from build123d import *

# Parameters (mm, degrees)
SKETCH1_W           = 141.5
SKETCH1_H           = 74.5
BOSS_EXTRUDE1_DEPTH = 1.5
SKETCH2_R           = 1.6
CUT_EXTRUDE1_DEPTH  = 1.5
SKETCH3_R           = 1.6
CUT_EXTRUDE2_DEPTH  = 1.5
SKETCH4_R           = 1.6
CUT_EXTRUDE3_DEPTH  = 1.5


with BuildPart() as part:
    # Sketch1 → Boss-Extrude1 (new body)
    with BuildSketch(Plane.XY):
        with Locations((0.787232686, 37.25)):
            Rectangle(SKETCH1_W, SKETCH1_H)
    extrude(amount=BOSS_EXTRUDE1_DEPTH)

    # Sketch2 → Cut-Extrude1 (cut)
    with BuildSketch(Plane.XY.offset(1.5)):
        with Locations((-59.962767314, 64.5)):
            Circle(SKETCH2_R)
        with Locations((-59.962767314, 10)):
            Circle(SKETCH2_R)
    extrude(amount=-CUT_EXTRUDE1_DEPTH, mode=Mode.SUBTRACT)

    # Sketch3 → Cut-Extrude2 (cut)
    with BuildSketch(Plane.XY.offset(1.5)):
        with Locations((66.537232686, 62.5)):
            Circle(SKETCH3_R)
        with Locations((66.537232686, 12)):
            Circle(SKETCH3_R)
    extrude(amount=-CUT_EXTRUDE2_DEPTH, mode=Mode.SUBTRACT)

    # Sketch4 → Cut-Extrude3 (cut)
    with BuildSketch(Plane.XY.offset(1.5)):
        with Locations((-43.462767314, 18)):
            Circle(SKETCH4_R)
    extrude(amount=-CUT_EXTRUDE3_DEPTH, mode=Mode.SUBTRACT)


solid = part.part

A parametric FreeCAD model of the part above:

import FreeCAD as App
import Part
import Sketcher

doc = App.newDocument("Part")
body = doc.addObject("PartDesign::Body", "Body")

sketch1 = body.newObject("Sketcher::SketchObject", "Sketch")
sketch1.AttachmentSupport = (doc.getObject("XY_Plane"), [""])
sketch1.MapMode = "FlatFace"
sketch1.addGeometry(Part.LineSegment(App.Vector(-70, 74, 0), App.Vector(-70, 0, 0)), False)
sketch1.addGeometry(Part.LineSegment(App.Vector(-70, 0, 0), App.Vector(72, 0, 0)), False)
sketch1.addGeometry(Part.LineSegment(App.Vector(72, 0, 0), App.Vector(72, 74, 0)), False)
sketch1.addGeometry(Part.LineSegment(App.Vector(72, 74, 0), App.Vector(-70, 74, 0)), False)
sketch1.addConstraint(Sketcher.Constraint("Coincident", 0, 2, 1, 1))
sketch1.addConstraint(Sketcher.Constraint("Coincident", 1, 2, 2, 1))
sketch1.addConstraint(Sketcher.Constraint("Coincident", 2, 2, 3, 1))
sketch1.addConstraint(Sketcher.Constraint("Coincident", 3, 2, 0, 1))
sketch1.addConstraint(Sketcher.Constraint("Vertical", 0))
sketch1.addConstraint(Sketcher.Constraint("Horizontal", 1))
sketch1.addConstraint(Sketcher.Constraint("Vertical", 2))
sketch1.addConstraint(Sketcher.Constraint("Horizontal", 3))
sketch1.addConstraint(Sketcher.Constraint("PointOnObject", 0, 2, -1))
sketch1.addConstraint(Sketcher.Constraint("DistanceX", 1, 1, 1, 2, 141.5))
sketch1.addConstraint(Sketcher.Constraint("DistanceY", 0, 2, 0, 1, 74.5))
sketch1.addConstraint(Sketcher.Constraint("DistanceX", 0, 2, -1, 1, 69.962767))
pad1 = body.newObject("PartDesign::Pad", "Pad")
pad1.Profile = sketch1
pad1.Length = 1.5

sketch2 = body.newObject("Sketcher::SketchObject", "Sketch001")
sketch2.AttachmentSupport = (doc.getObject("XY_Plane"), [""])
sketch2.MapMode = "FlatFace"
sketch2.AttachmentOffset = App.Placement(App.Vector(0, 0, 1.5), App.Rotation())
sketch2.addGeometry(Part.Circle(App.Vector(-60, 64.5, 0), App.Vector(0, 0, 1), 1.6), False)
sketch2.addGeometry(Part.Circle(App.Vector(-60, 10, 0), App.Vector(0, 0, 1), 1.6), False)
sketch2.addConstraint(Sketcher.Constraint("Equal", 0, 1))
sketch2.addConstraint(Sketcher.Constraint("Vertical", 0, 3, 1, 3))
sketch2.addConstraint(Sketcher.Constraint("Diameter", 0, 3.2))
sketch2.addConstraint(Sketcher.Constraint("DistanceY", -1, 1, 1, 3, 10.0))
sketch2.addConstraint(Sketcher.Constraint("DistanceY", -1, 1, 0, 3, 64.5))
sketch2.addConstraint(Sketcher.Constraint("DistanceX", 0, 3, -1, 1, 59.962767))
pocket1 = body.newObject("PartDesign::Pocket", "Pocket")
pocket1.Profile = sketch2
pocket1.Length = 1.5

sketch3 = body.newObject("Sketcher::SketchObject", "Sketch002")
sketch3.AttachmentSupport = (doc.getObject("XY_Plane"), [""])
sketch3.MapMode = "FlatFace"
sketch3.AttachmentOffset = App.Placement(App.Vector(0, 0, 1.5), App.Rotation())
sketch3.addGeometry(Part.Circle(App.Vector(66.5, 62.5, 0), App.Vector(0, 0, 1), 1.6), False)
sketch3.addGeometry(Part.Circle(App.Vector(66.5, 12, 0), App.Vector(0, 0, 1), 1.6), False)
sketch3.addConstraint(Sketcher.Constraint("Equal", 0, 1))
sketch3.addConstraint(Sketcher.Constraint("Vertical", 0, 3, 1, 3))
sketch3.addConstraint(Sketcher.Constraint("Diameter", 0, 3.2))
sketch3.addConstraint(Sketcher.Constraint("DistanceY", -1, 1, 1, 3, 12.0))
sketch3.addConstraint(Sketcher.Constraint("DistanceY", -1, 1, 0, 3, 62.5))
sketch3.addConstraint(Sketcher.Constraint("DistanceX", -1, 1, 0, 3, 66.537233))
pocket2 = body.newObject("PartDesign::Pocket", "Pocket001")
pocket2.Profile = sketch3
pocket2.Length = 1.5

sketch4 = body.newObject("Sketcher::SketchObject", "Sketch003")
sketch4.AttachmentSupport = (doc.getObject("XY_Plane"), [""])
sketch4.MapMode = "FlatFace"
sketch4.AttachmentOffset = App.Placement(App.Vector(0, 0, 1.5), App.Rotation())
sketch4.addGeometry(Part.Circle(App.Vector(-43.5, 18, 0), App.Vector(0, 0, 1), 1.6), False)
sketch4.addConstraint(Sketcher.Constraint("Diameter", 0, 3.2))
sketch4.addConstraint(Sketcher.Constraint("DistanceY", -1, 1, 0, 3, 18.0))
sketch4.addConstraint(Sketcher.Constraint("DistanceX", 0, 3, -1, 1, 43.462767))
pocket3 = body.newObject("PartDesign::Pocket", "Pocket002")
pocket3.Profile = sketch4
pocket3.Length = 1.5

doc.recompute()
